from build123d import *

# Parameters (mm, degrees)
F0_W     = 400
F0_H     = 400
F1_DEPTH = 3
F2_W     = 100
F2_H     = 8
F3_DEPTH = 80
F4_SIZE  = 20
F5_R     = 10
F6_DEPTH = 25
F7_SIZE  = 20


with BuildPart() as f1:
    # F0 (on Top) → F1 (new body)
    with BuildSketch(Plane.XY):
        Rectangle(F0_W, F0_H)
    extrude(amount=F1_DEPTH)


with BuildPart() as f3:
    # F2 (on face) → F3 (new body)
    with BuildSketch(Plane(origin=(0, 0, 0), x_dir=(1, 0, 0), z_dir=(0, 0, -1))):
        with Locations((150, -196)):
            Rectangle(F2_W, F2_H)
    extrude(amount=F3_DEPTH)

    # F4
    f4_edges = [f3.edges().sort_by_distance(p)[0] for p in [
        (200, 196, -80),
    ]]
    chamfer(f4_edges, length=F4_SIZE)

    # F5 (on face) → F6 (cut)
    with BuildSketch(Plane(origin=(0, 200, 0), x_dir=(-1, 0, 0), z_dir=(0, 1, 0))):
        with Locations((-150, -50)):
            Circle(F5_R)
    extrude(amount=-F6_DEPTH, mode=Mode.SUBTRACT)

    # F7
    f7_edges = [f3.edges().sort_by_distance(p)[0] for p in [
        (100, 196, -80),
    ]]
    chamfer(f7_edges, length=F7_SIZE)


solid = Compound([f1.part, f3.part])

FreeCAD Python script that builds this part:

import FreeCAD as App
import Part
import Sketcher
Q = App.Units.Quantity


def edges_at(feature, points):
    """Names of the edges that pass closest to the given points."""
    edges = feature.Shape.Edges
    near = lambda p: min(range(len(edges)), key=lambda i: edges[i].distToShape(Part.Vertex(*p))[0])
    return sorted({f"Edge{near(p) + 1}" for p in points})

doc = App.newDocument("Part")
body = doc.addObject("PartDesign::Body", "Body")

# Sketch on XY plane
sketch1 = body.newObject("Sketcher::SketchObject", "Sketch")
sketch1.AttachmentSupport = (doc.getObject("XY_Plane"), [""])
sketch1.MapMode = "FlatFace"
sketch1.addGeometry([
    Part.LineSegment(App.Vector(-200, 200, 0), App.Vector(-200, -200, 0)),
    Part.LineSegment(App.Vector(-200, -200, 0), App.Vector(200, -200, 0)),
    Part.LineSegment(App.Vector(200, -200, 0), App.Vector(200, 200, 0)),
    Part.LineSegment(App.Vector(200, 200, 0), App.Vector(-200, 200, 0)),
], False)
sketch1.addConstraint([
    Sketcher.Constraint("Coincident", 0, 2, 1, 1),
    Sketcher.Constraint("Coincident", 1, 2, 2, 1),
    Sketcher.Constraint("Coincident", 2, 2, 3, 1),
    Sketcher.Constraint("Coincident", 3, 2, 0, 1),
    Sketcher.Constraint("Vertical", 0),
    Sketcher.Constraint("Horizontal", 1),
    Sketcher.Constraint("Vertical", 2),
    Sketcher.Constraint("Horizontal", 3),
    Sketcher.Constraint("Symmetric", 0, 2, 2, 2, -1, 1),
    Sketcher.Constraint("Equal", 3, 0),
    Sketcher.Constraint("DistanceX", 1, 1, 1, 2, Q("400 mm")),
])
pad1 = body.newObject("PartDesign::Pad", "Pad")
pad1.Profile = sketch1
pad1.Length = 3
body2 = doc.addObject("PartDesign::Body", "Body001")

# Sketch on XY plane
sketch2 = body2.newObject("Sketcher::SketchObject", "Sketch001")
sketch2.AttachmentSupport = (doc.getObject("XY_Plane001"), [""])
sketch2.MapMode = "FlatFace"
sketch2.addGeometry([
    Part.LineSegment(App.Vector(100, 192, 0), App.Vector(100, 200, 0)),
    Part.LineSegment(App.Vector(100, 200, 0), App.Vector(200, 200, 0)),
    Part.LineSegment(App.Vector(200, 200, 0), App.Vector(200, 192, 0)),
    Part.LineSegment(App.Vector(200, 192, 0), App.Vector(100, 192, 0)),
], False)
sketch2.addConstraint([
    Sketcher.Constraint("Coincident", 0, 2, 1, 1),
    Sketcher.Constraint("Coincident", 1, 2, 2, 1),
    Sketcher.Constraint("Coincident", 2, 2, 3, 1),
    Sketcher.Constraint("Coincident", 3, 2, 0, 1),
    Sketcher.Constraint("Vertical", 0),
    Sketcher.Constraint("Horizontal", 1),
    Sketcher.Constraint("Vertical", 2),
    Sketcher.Constraint("Horizontal", 3),
    Sketcher.Constraint("DistanceX", 1, 1, 1, 2, Q("100 mm")),
    Sketcher.Constraint("DistanceY", 0, 1, 0, 2, Q("8 mm")),
    Sketcher.Constraint("DistanceX", -1, 1, 0, 2, Q("100 mm")),
    Sketcher.Constraint("DistanceY", -1, 1, 0, 2, Q("200 mm")),
])
pad2 = body2.newObject("PartDesign::Pad", "Pad001")
pad2.Profile = sketch2
pad2.Length = 80
pad2.Reversed = True
doc.recompute()

chamfer = body2.newObject("PartDesign::Chamfer", "Chamfer")
chamfer.Base = (pad2, edges_at(pad2, [(200, 196, -80)]))
chamfer.Size = 20

# Sketch on XZ plane
sketch3 = body2.newObject("Sketcher::SketchObject", "Sketch002")
sketch3.AttachmentSupport = (doc.getObject("XZ_Plane001"), [""])
sketch3.MapMode = "FlatFace"
sketch3.AttachmentOffset = App.Placement(App.Vector(0, 0, -200), App.Rotation())
sketch3.addGeometry(Part.Circle(App.Vector(150, -50, 0), App.Vector(0, 0, 1), 10), False)
sketch3.addConstraint([
    Sketcher.Constraint("Diameter", 0, Q("20 mm")),
    Sketcher.Constraint("DistanceX", -1, 1, 0, 3, Q("150 mm")),
    Sketcher.Constraint("DistanceY", 0, 3, -1, 1, Q("50 mm")),
])
pocket1 = body2.newObject("PartDesign::Pocket", "Pocket")
pocket1.Profile = sketch3
pocket1.Length = 25
pocket1.Reversed = True
doc.recompute()

chamfer2 = body2.newObject("PartDesign::Chamfer", "Chamfer001")
chamfer2.Base = (pocket1, edges_at(pocket1, [(100, 196, -80)]))
chamfer2.Size = 20

doc.recompute()
